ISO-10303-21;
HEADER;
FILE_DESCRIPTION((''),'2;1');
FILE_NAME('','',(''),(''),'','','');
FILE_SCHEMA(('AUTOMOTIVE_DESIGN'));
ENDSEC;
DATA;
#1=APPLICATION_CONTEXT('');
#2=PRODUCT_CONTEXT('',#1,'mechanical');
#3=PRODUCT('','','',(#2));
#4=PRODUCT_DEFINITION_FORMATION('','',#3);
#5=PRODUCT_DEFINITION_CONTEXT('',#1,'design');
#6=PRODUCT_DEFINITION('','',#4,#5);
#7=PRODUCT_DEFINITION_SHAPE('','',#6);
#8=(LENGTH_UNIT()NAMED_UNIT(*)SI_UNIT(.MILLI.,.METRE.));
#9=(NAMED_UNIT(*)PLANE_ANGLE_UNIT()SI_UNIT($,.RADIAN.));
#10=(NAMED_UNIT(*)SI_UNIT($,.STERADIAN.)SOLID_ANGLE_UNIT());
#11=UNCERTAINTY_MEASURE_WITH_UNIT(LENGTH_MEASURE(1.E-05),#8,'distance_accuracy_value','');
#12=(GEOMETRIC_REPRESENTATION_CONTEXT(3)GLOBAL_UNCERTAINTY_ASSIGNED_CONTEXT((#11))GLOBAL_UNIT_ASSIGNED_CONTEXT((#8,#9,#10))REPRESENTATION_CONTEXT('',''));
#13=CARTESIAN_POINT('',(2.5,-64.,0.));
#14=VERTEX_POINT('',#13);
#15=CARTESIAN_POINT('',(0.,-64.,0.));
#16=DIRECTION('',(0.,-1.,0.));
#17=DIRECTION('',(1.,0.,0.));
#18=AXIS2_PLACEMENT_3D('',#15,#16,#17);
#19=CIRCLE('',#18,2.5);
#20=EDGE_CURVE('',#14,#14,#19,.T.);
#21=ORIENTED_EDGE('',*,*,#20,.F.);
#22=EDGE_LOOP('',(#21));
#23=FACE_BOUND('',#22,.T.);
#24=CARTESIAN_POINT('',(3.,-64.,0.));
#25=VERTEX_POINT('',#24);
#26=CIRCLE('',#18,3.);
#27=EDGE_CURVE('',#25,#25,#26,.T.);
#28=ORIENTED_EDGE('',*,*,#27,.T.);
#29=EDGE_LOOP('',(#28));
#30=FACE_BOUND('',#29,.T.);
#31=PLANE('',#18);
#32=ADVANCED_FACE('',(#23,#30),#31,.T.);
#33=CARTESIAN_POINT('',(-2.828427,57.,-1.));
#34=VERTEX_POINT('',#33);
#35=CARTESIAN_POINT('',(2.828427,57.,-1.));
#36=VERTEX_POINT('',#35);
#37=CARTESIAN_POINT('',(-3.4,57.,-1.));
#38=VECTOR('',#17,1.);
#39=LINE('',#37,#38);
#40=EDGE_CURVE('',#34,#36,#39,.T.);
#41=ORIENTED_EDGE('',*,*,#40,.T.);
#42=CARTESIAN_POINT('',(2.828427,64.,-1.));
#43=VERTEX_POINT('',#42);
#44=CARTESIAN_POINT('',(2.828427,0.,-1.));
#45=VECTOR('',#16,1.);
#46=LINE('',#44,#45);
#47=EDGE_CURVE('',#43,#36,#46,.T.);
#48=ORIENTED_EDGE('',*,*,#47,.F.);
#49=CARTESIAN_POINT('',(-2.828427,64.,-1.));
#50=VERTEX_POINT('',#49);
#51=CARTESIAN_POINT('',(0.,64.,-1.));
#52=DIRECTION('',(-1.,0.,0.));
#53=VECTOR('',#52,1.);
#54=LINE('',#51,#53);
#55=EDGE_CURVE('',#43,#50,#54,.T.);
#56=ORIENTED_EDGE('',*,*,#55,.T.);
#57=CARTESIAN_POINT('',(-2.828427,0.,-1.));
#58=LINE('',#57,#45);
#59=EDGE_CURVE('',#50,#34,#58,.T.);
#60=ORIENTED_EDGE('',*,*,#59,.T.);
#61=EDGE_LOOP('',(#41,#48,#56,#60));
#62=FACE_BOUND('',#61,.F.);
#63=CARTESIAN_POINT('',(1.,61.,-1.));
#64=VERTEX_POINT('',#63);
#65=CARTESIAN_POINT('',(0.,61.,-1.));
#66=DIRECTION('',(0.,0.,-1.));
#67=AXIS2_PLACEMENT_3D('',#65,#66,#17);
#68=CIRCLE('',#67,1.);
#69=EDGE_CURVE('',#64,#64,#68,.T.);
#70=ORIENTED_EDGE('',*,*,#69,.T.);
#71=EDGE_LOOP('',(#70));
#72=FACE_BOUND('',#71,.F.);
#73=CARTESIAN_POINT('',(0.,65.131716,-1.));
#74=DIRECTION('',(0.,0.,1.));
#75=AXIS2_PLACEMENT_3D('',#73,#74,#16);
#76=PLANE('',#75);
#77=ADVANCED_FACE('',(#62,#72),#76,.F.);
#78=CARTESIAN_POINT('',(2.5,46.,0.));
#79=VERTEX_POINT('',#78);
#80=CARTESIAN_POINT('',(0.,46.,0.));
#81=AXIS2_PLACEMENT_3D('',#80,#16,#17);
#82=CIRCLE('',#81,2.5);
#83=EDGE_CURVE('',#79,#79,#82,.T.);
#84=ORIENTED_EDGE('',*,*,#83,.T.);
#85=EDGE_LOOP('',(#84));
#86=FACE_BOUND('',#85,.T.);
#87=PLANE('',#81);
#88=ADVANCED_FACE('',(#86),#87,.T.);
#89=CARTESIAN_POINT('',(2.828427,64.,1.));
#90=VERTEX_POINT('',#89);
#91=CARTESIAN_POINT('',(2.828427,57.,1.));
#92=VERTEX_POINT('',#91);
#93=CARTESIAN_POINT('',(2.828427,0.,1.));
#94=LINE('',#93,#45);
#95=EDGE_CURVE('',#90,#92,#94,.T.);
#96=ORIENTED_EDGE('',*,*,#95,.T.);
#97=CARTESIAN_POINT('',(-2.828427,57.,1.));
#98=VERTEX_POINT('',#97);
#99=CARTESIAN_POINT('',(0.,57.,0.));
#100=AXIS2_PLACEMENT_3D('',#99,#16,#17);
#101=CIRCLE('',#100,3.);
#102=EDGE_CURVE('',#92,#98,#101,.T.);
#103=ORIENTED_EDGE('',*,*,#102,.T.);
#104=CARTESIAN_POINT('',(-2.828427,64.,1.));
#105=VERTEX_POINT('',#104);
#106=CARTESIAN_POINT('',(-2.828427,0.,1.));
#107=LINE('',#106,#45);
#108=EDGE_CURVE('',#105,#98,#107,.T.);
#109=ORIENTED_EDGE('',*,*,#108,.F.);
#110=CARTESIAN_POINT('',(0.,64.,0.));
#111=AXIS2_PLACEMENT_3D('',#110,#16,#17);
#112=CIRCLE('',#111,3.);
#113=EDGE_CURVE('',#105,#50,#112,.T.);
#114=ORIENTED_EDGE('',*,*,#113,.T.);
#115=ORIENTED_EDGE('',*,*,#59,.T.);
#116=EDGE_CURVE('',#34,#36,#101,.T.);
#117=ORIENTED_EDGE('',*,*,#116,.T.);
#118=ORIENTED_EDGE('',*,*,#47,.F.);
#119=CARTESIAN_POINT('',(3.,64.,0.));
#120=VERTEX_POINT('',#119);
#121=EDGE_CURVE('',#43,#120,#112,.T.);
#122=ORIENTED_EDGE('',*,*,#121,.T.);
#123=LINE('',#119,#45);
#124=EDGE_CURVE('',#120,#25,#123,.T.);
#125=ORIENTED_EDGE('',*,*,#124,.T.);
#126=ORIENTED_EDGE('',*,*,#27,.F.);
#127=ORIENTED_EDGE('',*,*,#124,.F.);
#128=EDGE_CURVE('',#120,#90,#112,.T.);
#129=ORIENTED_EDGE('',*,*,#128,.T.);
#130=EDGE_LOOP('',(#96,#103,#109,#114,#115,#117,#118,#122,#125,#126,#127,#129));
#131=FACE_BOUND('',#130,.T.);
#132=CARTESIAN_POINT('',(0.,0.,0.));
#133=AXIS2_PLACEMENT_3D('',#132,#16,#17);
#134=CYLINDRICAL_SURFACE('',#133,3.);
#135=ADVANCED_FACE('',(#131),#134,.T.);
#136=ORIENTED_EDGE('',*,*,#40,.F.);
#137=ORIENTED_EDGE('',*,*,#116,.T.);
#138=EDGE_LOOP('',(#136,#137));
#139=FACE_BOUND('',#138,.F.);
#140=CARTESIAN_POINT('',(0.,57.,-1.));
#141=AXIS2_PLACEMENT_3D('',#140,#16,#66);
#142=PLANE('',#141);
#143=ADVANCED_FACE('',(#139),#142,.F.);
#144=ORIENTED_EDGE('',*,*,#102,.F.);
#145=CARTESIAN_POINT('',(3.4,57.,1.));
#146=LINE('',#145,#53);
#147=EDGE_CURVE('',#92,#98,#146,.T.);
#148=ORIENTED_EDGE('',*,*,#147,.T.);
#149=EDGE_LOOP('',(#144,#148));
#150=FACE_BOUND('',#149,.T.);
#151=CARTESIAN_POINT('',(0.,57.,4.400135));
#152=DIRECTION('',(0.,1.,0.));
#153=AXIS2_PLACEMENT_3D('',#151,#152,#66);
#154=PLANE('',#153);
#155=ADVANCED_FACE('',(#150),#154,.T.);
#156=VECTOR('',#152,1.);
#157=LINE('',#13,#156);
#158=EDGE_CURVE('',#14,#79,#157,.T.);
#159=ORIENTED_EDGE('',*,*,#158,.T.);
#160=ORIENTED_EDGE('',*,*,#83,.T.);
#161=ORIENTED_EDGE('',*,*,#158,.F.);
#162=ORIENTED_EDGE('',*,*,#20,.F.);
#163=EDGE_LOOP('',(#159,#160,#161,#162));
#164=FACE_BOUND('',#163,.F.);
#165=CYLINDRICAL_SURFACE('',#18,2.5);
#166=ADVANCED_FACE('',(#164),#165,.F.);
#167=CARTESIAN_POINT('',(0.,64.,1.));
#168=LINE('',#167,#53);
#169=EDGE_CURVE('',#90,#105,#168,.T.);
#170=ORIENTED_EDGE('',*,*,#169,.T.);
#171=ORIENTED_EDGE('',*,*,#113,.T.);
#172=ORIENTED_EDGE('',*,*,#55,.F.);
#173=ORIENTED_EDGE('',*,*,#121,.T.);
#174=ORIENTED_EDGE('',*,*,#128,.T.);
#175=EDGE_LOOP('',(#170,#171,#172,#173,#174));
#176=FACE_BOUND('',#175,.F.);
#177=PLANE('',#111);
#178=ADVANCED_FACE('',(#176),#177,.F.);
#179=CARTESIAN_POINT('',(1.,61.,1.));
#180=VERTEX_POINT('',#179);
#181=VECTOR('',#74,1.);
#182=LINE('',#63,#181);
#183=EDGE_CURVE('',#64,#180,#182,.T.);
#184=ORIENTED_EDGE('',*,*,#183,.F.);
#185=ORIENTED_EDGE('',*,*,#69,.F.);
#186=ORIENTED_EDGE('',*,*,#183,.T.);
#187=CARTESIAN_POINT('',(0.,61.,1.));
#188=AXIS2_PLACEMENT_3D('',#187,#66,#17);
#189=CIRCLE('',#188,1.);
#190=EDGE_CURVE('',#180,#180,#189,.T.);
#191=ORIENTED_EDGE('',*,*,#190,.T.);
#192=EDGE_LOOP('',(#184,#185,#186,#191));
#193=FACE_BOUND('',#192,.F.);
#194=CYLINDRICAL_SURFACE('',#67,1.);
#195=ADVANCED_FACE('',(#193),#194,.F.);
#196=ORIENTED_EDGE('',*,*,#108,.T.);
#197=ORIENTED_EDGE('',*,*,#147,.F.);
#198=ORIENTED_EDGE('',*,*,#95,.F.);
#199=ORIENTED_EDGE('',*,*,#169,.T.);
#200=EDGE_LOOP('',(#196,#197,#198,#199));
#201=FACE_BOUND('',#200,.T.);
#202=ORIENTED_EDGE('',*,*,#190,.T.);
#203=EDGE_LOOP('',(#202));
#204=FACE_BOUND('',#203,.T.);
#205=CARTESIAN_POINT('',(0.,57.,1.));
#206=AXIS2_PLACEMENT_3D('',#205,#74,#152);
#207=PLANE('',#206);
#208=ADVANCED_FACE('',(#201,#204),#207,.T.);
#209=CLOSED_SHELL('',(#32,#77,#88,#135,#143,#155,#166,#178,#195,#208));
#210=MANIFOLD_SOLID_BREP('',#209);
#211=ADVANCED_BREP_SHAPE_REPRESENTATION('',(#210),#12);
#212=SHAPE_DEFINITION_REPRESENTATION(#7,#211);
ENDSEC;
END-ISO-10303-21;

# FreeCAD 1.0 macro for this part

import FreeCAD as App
import Part
import Sketcher

V = App.Vector

doc = App.newDocument("Part")
body = doc.addObject("PartDesign::Body", "Body")

# Sketch on XZ plane
sketch1 = body.newObject("Sketcher::SketchObject", "Sketch")
sketch1.AttachmentSupport = (doc.getObject("XZ_Plane"), [""])
sketch1.MapMode = "FlatFace"
sketch1.addGeometry(Part.Circle(V(0, 0, 0), V(0, 0, 1), 3), False)
sketch1.addConstraint([
    Sketcher.Constraint("Coincident", 0, 3, -1, 1),
    Sketcher.Constraint("Diameter", 0, 6.0),
])
pad1 = body.newObject("PartDesign::Pad", "Pad")
pad1.Profile = sketch1
pad1.Length = 128
pad1.Midplane = True

# Sketch on XZ plane
sketch2 = body.newObject("Sketcher::SketchObject", "Sketch001")
sketch2.AttachmentSupport = (doc.getObject("XZ_Plane"), [""])
sketch2.MapMode = "FlatFace"
sketch2.AttachmentOffset = App.Placement(V(0, 0, 64), App.Rotation())
sketch2.addGeometry(Part.Circle(V(0, 0, 0), V(0, 0, 1), 2.5), False)
sketch2.addConstraint([
    Sketcher.Constraint("Coincident", 0, 3, -1, 1),
    Sketcher.Constraint("Diameter", 0, 5.0),
])
pocket1 = body.newObject("PartDesign::Pocket", "Pocket")
pocket1.Profile = sketch2
pocket1.Length = 110

# Sketch on YZ plane
sketch3 = body.newObject("Sketcher::SketchObject", "Sketch002")
sketch3.AttachmentSupport = (doc.getObject("YZ_Plane"), [""])
sketch3.MapMode = "FlatFace"
sketch3.addGeometry([
    Part.LineSegment(V(57, 1, 0), V(64.78107, 1, 0)),  # 0
    Part.LineSegment(V(64.78107, 1, 0), V(64.78107, 4.400135, 0)),  # 1
    Part.LineSegment(V(64.78107, 4.400135, 0), V(57, 4.400135, 0)),  # 2
    Part.LineSegment(V(57, 4.400135, 0), V(57, 1, 0)),  # 3
    Part.LineSegment(V(65.131716, -1, 0), V(57, -1, 0)),  # 4
    Part.LineSegment(V(57, -1, 0), V(57, -4.581856, 0)),  # 5
    Part.LineSegment(V(57, -4.581856, 0), V(65.131716, -4.581856, 0)),  # 6
    Part.LineSegment(V(65.131716, -4.581856, 0), V(65.131716, -1, 0)),  # 7
], False)
sketch3.addConstraint([
    Sketcher.Constraint("Coincident", 0, 2, 1, 1),
    Sketcher.Constraint("Coincident", 1, 2, 2, 1),
    Sketcher.Constraint("Coincident", 2, 2, 3, 1),
    Sketcher.Constraint("Coincident", 3, 2, 0, 1),
    Sketcher.Constraint("Coincident", 4, 2, 5, 1),
    Sketcher.Constraint("Coincident", 5, 2, 6, 1),
    Sketcher.Constraint("Coincident", 6, 2, 7, 1),
    Sketcher.Constraint("Coincident", 7, 2, 4, 1),
    Sketcher.Constraint("Horizontal", 0),
    Sketcher.Constraint("Vertical", 1),
    Sketcher.Constraint("Horizontal", 2),
    Sketcher.Constraint("Vertical", 3),
    Sketcher.Constraint("Horizontal", 4),
    Sketcher.Constraint("Vertical", 5),
    Sketcher.Constraint("Horizontal", 6),
    Sketcher.Constraint("Vertical", 7),
    Sketcher.Constraint("Symmetric", 3, 2, 4, 2, -1),
    Sketcher.Constraint("DistanceY", -1, 1, 0, 2, 1.0),
    Sketcher.Constraint("DistanceX", -1, 1, 2, 2, 57.0),
    Sketcher.Constraint("DistanceX", 0, 1, 0, 2, 7.78107),
    Sketcher.Constraint("DistanceX", 4, 2, 4, 1, 8.131716),
    Sketcher.Constraint("DistanceY", 1, 1, 1, 2, 3.400135),
    Sketcher.Constraint("DistanceY", 5, 2, 5, 1, 3.581856),
])
pocket2 = body.newObject("PartDesign::Pocket", "Pocket001")
pocket2.Profile = sketch3
pocket2.Length = 6.8
pocket2.Midplane = True

# Sketch on XY plane
sketch4 = body.newObject("Sketcher::SketchObject", "Sketch003")
sketch4.AttachmentSupport = (doc.getObject("XY_Plane"), [""])
sketch4.MapMode = "FlatFace"
sketch4.AttachmentOffset = App.Placement(V(0, 0, -1), App.Rotation())
sketch4.addGeometry(Part.Circle(V(0, 61, 0), V(0, 0, 1), 1), False)
sketch4.addConstraint([
    Sketcher.Constraint("PointOnObject", 0, 3, -2),
    Sketcher.Constraint("Diameter", 0, 2.0),
    Sketcher.Constraint("DistanceY", -1, 1, 0, 3, 61.0),
])
pocket3 = body.newObject("PartDesign::Pocket", "Pocket002")
pocket3.Profile = sketch4
pocket3.Length = 2.8
pocket3.Reversed = True

doc.recompute()
